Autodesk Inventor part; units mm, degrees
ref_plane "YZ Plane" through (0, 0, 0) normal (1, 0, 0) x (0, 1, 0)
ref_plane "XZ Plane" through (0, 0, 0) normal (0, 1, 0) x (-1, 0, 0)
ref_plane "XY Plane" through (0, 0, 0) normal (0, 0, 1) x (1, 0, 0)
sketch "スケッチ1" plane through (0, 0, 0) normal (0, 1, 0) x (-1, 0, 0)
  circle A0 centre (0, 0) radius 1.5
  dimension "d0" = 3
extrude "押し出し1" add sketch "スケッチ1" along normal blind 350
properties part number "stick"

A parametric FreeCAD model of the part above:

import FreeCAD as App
import Part
import Sketcher

V = App.Vector
Q = App.Units.Quantity

doc = App.newDocument("Part")
body = doc.addObject("PartDesign::Body", "Body")

# Sketch on XZ plane
sketch1 = body.newObject("Sketcher::SketchObject", "Sketch")
sketch1.AttachmentSupport = (doc.getObject("XZ_Plane"), [""])
sketch1.MapMode = "FlatFace"
sketch1.addGeometry(Part.Circle(V(0, 0, 0), V(0, 0, 1), 1.5), False)
sketch1.addConstraint(Sketcher.Constraint("Coincident", 0, 3, -1, 1))
sketch1.addConstraint(Sketcher.Constraint("Diameter", 0, Q("3 mm")))
pad1 = body.newObject("PartDesign::Pad", "Pad")
pad1.Profile = sketch1
pad1.Length = 350
pad1.Reversed = True

doc.recompute()
